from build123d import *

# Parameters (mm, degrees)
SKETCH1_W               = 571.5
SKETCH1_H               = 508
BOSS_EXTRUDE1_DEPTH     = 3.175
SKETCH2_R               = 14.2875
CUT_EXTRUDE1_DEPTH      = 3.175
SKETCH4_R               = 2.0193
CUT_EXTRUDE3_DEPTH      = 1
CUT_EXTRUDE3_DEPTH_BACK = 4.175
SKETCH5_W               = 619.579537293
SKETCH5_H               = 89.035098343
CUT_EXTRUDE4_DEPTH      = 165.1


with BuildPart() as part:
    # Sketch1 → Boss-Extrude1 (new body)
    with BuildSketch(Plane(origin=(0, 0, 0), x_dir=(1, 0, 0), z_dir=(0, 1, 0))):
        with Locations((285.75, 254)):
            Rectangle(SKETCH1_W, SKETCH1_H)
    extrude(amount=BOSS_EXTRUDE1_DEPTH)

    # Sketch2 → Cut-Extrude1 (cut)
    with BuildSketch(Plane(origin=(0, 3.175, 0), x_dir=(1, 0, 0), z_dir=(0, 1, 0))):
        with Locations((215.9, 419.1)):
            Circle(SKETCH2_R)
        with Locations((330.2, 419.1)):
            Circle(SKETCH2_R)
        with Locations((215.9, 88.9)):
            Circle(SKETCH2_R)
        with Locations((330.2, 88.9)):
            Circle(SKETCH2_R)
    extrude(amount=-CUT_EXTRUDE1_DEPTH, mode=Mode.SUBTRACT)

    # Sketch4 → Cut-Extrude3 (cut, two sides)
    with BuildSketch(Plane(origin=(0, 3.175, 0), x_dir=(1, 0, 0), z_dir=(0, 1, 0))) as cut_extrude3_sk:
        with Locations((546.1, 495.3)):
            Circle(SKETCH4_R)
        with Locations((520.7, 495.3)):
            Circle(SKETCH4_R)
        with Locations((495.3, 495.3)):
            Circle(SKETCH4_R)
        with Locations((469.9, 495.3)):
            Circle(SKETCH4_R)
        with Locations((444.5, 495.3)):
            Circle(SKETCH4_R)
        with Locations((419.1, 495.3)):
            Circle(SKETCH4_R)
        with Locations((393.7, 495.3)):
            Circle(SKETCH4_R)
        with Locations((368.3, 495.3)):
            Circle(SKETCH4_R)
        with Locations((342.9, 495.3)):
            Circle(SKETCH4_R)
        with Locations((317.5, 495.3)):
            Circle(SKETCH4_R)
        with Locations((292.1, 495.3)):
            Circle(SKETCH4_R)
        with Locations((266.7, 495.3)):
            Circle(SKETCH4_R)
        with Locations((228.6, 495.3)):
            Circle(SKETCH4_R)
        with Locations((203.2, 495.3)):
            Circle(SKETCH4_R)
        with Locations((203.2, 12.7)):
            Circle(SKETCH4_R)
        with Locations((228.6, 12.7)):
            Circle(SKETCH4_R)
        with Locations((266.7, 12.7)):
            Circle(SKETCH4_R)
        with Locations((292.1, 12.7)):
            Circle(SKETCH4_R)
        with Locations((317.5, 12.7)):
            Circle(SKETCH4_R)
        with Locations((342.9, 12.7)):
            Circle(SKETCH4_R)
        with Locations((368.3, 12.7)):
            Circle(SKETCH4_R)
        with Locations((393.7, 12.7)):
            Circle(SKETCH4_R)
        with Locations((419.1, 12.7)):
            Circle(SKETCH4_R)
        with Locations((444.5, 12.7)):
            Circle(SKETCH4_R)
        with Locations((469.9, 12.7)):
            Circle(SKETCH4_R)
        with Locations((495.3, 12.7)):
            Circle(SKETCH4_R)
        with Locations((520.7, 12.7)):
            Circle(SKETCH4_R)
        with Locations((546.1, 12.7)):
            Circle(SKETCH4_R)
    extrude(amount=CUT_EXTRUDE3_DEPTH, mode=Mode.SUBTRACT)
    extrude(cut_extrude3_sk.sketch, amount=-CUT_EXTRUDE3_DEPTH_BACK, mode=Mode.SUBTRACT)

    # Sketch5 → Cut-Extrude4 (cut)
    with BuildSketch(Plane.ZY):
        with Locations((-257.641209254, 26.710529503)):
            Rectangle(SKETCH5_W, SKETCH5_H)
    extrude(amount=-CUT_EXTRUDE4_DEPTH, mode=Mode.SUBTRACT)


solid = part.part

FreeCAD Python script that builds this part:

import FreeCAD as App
import Part
import Sketcher
Q = App.Units.Quantity


def add_polygon(sketch, points):
    """Adds a closed chain of lines whose ends are joined by coincident constraints."""
    first, n = sketch.GeometryCount, len(points)
    for a, b in zip(points, points[1:] + points[:1]):
        sketch.addGeometry(Part.LineSegment(App.Vector(*a, 0), App.Vector(*b, 0)), False)
    for i in range(n):
        sketch.addConstraint(Sketcher.Constraint("Coincident", first + i, 2, first + (i + 1) % n, 1))

doc = App.newDocument("Part")
params = doc.addObject("Spreadsheet::Sheet", "Params")
for row, (alias, value) in enumerate([
    ("sketch1_height", "20 in"),
    ("sketch1_width", "22.5 in"),
    ("pad1_length", "0.125 in"),
    ("sketch2_diameter", "1.125 in"),
    ("pocket1_length", "0.125 in"),
    ("sketch3_diameter", "0.159 in"),
    ("pocket3_length", "6.5 in"),
], start=1):
    params.set(f"A{row}", alias)
    params.set(f"B{row}", "=" + value)
    params.setAlias(f"B{row}", alias)

body = doc.addObject("PartDesign::Body", "Body")

# Sketch on XZ plane
sketch1 = body.newObject("Sketcher::SketchObject", "Sketch")
sketch1.AttachmentSupport = (doc.getObject("XZ_Plane"), [""])
sketch1.MapMode = "FlatFace"
add_polygon(sketch1, [(0, -508), (0, 0), (572, 0), (572, -508)])  # lines 0-3
sketch1.addConstraint([
    Sketcher.Constraint("Vertical", 0),
    Sketcher.Constraint("Horizontal", 1),
    Sketcher.Constraint("Vertical", 2),
    Sketcher.Constraint("Horizontal", 3),
    Sketcher.Constraint("Coincident", 0, 2, -1, 1),
    Sketcher.Constraint("DistanceY", 0, 1, 0, 2, Q("20 in")),
    Sketcher.Constraint("DistanceX", 1, 1, 1, 2, Q("22.5 in")),
])
sketch1.setExpression("Constraints[9]", "Params.sketch1_height")
sketch1.setExpression("Constraints[10]", "Params.sketch1_width")
pad1 = body.newObject("PartDesign::Pad", "Pad")
pad1.Profile = sketch1
pad1.setExpression("Length", "Params.pad1_length")
pad1.Reversed = True

# Sketch on XZ plane
sketch2 = body.newObject("Sketcher::SketchObject", "Sketch001")
sketch2.AttachmentSupport = (doc.getObject("XZ_Plane"), [""])
sketch2.MapMode = "FlatFace"
sketch2.AttachmentOffset = App.Placement(App.Vector(0, 0, -0.125 * 25.4), App.Rotation())
sketch2.addGeometry([
    Part.Circle(App.Vector(216, -419, 0), App.Vector(0, 0, 1), 14),
    Part.Circle(App.Vector(330, -419, 0), App.Vector(0, 0, 1), 14),
    Part.Circle(App.Vector(216, -89, 0), App.Vector(0, 0, 1), 14),
    Part.Circle(App.Vector(330, -89, 0), App.Vector(0, 0, 1), 14),
], False)
sketch2.addConstraint([
    Sketcher.Constraint("Equal", 0, 1),
    Sketcher.Constraint("Equal", 1, 2),
    Sketcher.Constraint("Equal", 2, 3),
    Sketcher.Constraint("Horizontal", 0, 3, 1, 3),
    Sketcher.Constraint("Horizontal", 2, 3, 3, 3),
    Sketcher.Constraint("Vertical", 0, 3, 2, 3),
    Sketcher.Constraint("Vertical", 1, 3, 3, 3),
    Sketcher.Constraint("Diameter", 0, Q("1.125 in")),
    Sketcher.Constraint("DistanceX", -1, 1, 1, 3, Q("13 in")),
    Sketcher.Constraint("DistanceY", 0, 3, 2, 3, Q("13 in")),
    Sketcher.Constraint("DistanceX", -1, 1, 0, 3, Q("8.5 in")),
    Sketcher.Constraint("DistanceY", 0, 3, -1, 1, Q("16.5 in")),
])
sketch2.setExpression("Constraints[7]", "Params.sketch2_diameter")
pocket1 = body.newObject("PartDesign::Pocket", "Pocket")
pocket1.Profile = sketch2
pocket1.setExpression("Length", "Params.pocket1_length")
pocket1.Reversed = True

# Sketch on XZ plane
sketch3 = body.newObject("Sketcher::SketchObject", "Sketch002")
sketch3.AttachmentSupport = (doc.getObject("XZ_Plane"), [""])
sketch3.MapMode = "FlatFace"
sketch3.AttachmentOffset = App.Placement(App.Vector(0, 0, -0.125 * 25.4), App.Rotation())
sketch3.addGeometry([
    Part.Circle(App.Vector(546.1, -495.3, 0), App.Vector(0, 0, 1), 2),  # 0
    Part.Circle(App.Vector(520.7, -495.3, 0), App.Vector(0, 0, 1), 2),  # 1
    Part.Circle(App.Vector(495.3, -495.3, 0), App.Vector(0, 0, 1), 2),  # 2
    Part.Circle(App.Vector(469.9, -495.3, 0), App.Vector(0, 0, 1), 2),  # 3
    Part.Circle(App.Vector(444.5, -495.3, 0), App.Vector(0, 0, 1), 2),  # 4
    Part.Circle(App.Vector(419.1, -495.3, 0), App.Vector(0, 0, 1), 2),  # 5
    Part.Circle(App.Vector(393.7, -495.3, 0), App.Vector(0, 0, 1), 2),  # 6
    Part.Circle(App.Vector(368.3, -495.3, 0), App.Vector(0, 0, 1), 2),  # 7
    Part.Circle(App.Vector(342.9, -495.3, 0), App.Vector(0, 0, 1), 2),  # 8
    Part.Circle(App.Vector(317.5, -495.3, 0), App.Vector(0, 0, 1), 2),  # 9
    Part.Circle(App.Vector(292.1, -495.3, 0), App.Vector(0, 0, 1), 2),  # 10
    Part.Circle(App.Vector(266.7, -495.3, 0), App.Vector(0, 0, 1), 2),  # 11
    Part.Circle(App.Vector(228.6, -495.3, 0), App.Vector(0, 0, 1), 2),  # 12
    Part.Circle(App.Vector(203.2, -495.3, 0), App.Vector(0, 0, 1), 2),  # 13
    Part.Circle(App.Vector(203.2, -12.7, 0), App.Vector(0, 0, 1), 2),  # 14
    Part.Circle(App.Vector(228.6, -12.7, 0), App.Vector(0, 0, 1), 2),  # 15
    Part.Circle(App.Vector(266.7, -12.7, 0), App.Vector(0, 0, 1), 2),  # 16
    Part.Circle(App.Vector(292.1, -12.7, 0), App.Vector(0, 0, 1), 2),  # 17
    Part.Circle(App.Vector(317.5, -12.7, 0), App.Vector(0, 0, 1), 2),  # 18
    Part.Circle(App.Vector(342.9, -12.7, 0), App.Vector(0, 0, 1), 2),  # 19
    Part.Circle(App.Vector(368.3, -12.7, 0), App.Vector(0, 0, 1), 2),  # 20
    Part.Circle(App.Vector(393.7, -12.7, 0), App.Vector(0, 0, 1), 2),  # 21
    Part.Circle(App.Vector(419.1, -12.7, 0), App.Vector(0, 0, 1), 2),  # 22
    Part.Circle(App.Vector(444.5, -12.7, 0), App.Vector(0, 0, 1), 2),  # 23
    Part.Circle(App.Vector(469.9, -12.7, 0), App.Vector(0, 0, 1), 2),  # 24
    Part.Circle(App.Vector(495.3, -12.7, 0), App.Vector(0, 0, 1), 2),  # 25
    Part.Circle(App.Vector(520.7, -12.7, 0), App.Vector(0, 0, 1), 2),  # 26
    Part.Circle(App.Vector(546.1, -12.7, 0), App.Vector(0, 0, 1), 2),  # 27
], False)
sketch3.addConstraint([
    Sketcher.Constraint("Equal", 0, 1),
    Sketcher.Constraint("Equal", 1, 2),
    Sketcher.Constraint("Equal", 2, 3),
    Sketcher.Constraint("Equal", 3, 4),
    Sketcher.Constraint("Equal", 4, 5),
    Sketcher.Constraint("Equal", 5, 6),
    Sketcher.Constraint("Equal", 6, 7),
    Sketcher.Constraint("Equal", 7, 8),
    Sketcher.Constraint("Equal", 8, 9),
    Sketcher.Constraint("Equal", 9, 10),
    Sketcher.Constraint("Equal", 10, 11),
    Sketcher.Constraint("Equal", 11, 12),
    Sketcher.Constraint("Equal", 12, 13),
    Sketcher.Constraint("Equal", 13, 14),
    Sketcher.Constraint("Equal", 14, 15),
    Sketcher.Constraint("Equal", 15, 16),
    Sketcher.Constraint("Equal", 16, 17),
    Sketcher.Constraint("Equal", 17, 18),
    Sketcher.Constraint("Equal", 18, 19),
    Sketcher.Constraint("Equal", 19, 20),
    Sketcher.Constraint("Equal", 20, 21),
    Sketcher.Constraint("Equal", 21, 22),
    Sketcher.Constraint("Equal", 22, 23),
    Sketcher.Constraint("Equal", 23, 24),
    Sketcher.Constraint("Equal", 24, 25),
    Sketcher.Constraint("Equal", 25, 26),
    Sketcher.Constraint("Equal", 26, 27),
    Sketcher.Constraint("Horizontal", 0, 3, 1, 3),
    Sketcher.Constraint("Horizontal", 1, 3, 2, 3),
    Sketcher.Constraint("Horizontal", 2, 3, 3, 3),
    Sketcher.Constraint("Horizontal", 3, 3, 4, 3),
    Sketcher.Constraint("Horizontal", 4, 3, 5, 3),
    Sketcher.Constraint("Horizontal", 5, 3, 6, 3),
    Sketcher.Constraint("Horizontal", 6, 3, 7, 3),
    Sketcher.Constraint("Horizontal", 7, 3, 8, 3),
    Sketcher.Constraint("Horizontal", 8, 3, 9, 3),
    Sketcher.Constraint("Horizontal", 9, 3, 10, 3),
    Sketcher.Constraint("Horizontal", 10, 3, 11, 3),
    Sketcher.Constraint("Horizontal", 11, 3, 12, 3),
    Sketcher.Constraint("Horizontal", 12, 3, 13, 3),
    Sketcher.Constraint("Horizontal", 14, 3, 15, 3),
    Sketcher.Constraint("Horizontal", 15, 3, 16, 3),
    Sketcher.Constraint("Horizontal", 16, 3, 17, 3),
    Sketcher.Constraint("Horizontal", 17, 3, 18, 3),
    Sketcher.Constraint("Horizontal", 18, 3, 19, 3),
    Sketcher.Constraint("Horizontal", 19, 3, 20, 3),
    Sketcher.Constraint("Horizontal", 20, 3, 21, 3),
    Sketcher.Constraint("Horizontal", 21, 3, 22, 3),
    Sketcher.Constraint("Horizontal", 22, 3, 23, 3),
    Sketcher.Constraint("Horizontal", 23, 3, 24, 3),
    Sketcher.Constraint("Horizontal", 24, 3, 25, 3),
    Sketcher.Constraint("Horizontal", 25, 3, 26, 3),
    Sketcher.Constraint("Horizontal", 26, 3, 27, 3),
    Sketcher.Constraint("Vertical", 13, 3, 14, 3),
    Sketcher.Constraint("Vertical", 12, 3, 15, 3),
    Sketcher.Constraint("Vertical", 11, 3, 16, 3),
    Sketcher.Constraint("Vertical", 10, 3, 17, 3),
    Sketcher.Constraint("Vertical", 9, 3, 18, 3),
    Sketcher.Constraint("Vertical", 8, 3, 19, 3),
    Sketcher.Constraint("Vertical", 7, 3, 20, 3),
    Sketcher.Constraint("Vertical", 6, 3, 21, 3),
    Sketcher.Constraint("Vertical", 5, 3, 22, 3),
    Sketcher.Constraint("Vertical", 4, 3, 23, 3),
    Sketcher.Constraint("Vertical", 3, 3, 24, 3),
    Sketcher.Constraint("Vertical", 2, 3, 25, 3),
    Sketcher.Constraint("Vertical", 1, 3, 26, 3),
    Sketcher.Constraint("Vertical", 0, 3, 27, 3),
    Sketcher.Constraint("Diameter", 0, Q("0.159 in")),
    Sketcher.Constraint("DistanceX", -1, 1, 12, 3, Q("9 in")),
    Sketcher.Constraint("DistanceX", -1, 1, 13, 3, Q("8 in")),
    Sketcher.Constraint("DistanceX", 1, 3, 0, 3, Q("1 in")),
    Sketcher.Constraint("DistanceX", 2, 3, 1, 3, Q("1 in")),
    Sketcher.Constraint("DistanceX", 3, 3, 2, 3, Q("1 in")),
    Sketcher.Constraint("DistanceX", 4, 3, 3, 3, Q("1 in")),
    Sketcher.Constraint("DistanceX", 5, 3, 4, 3, Q("1 in")),
    Sketcher.Constraint("DistanceX", 6, 3, 5, 3, Q("1 in")),
    Sketcher.Constraint("DistanceX", 7, 3, 6, 3, Q("1 in")),
    Sketcher.Constraint("DistanceX", 8, 3, 7, 3, Q("1 in")),
    Sketcher.Constraint("DistanceX", 9, 3, 8, 3, Q("1 in")),
    Sketcher.Constraint("DistanceX", 10, 3, 9, 3, Q("1 in")),
    Sketcher.Constraint("DistanceX", 11, 3, 10, 3, Q("1 in")),
    Sketcher.Constraint("DistanceY", 13, 3, 14, 3, Q("19 in")),
    Sketcher.Constraint("DistanceX", -1, 1, 0, 3, Q("21.5 in")),
    Sketcher.Constraint("DistanceY", 0, 3, -1, 1, Q("19.5 in")),
])
sketch3.setExpression("Constraints[67]", "Params.sketch3_diameter")
pocket2 = body.newObject("PartDesign::Pocket", "Pocket001")
pocket2.Profile = sketch3
pocket2.Type = "ThroughAll"
pocket2.Midplane = True

# Sketch on YZ plane
sketch4 = body.newObject("Sketcher::SketchObject", "Sketch003")
sketch4.AttachmentSupport = (doc.getObject("YZ_Plane"), [""])
sketch4.MapMode = "FlatFace"
add_polygon(sketch4, [(71, -567), (-18, -567), (-18, 52), (71, 52)])  # lines 0-3
sketch4.addConstraint([
    Sketcher.Constraint("Horizontal", 0),
    Sketcher.Constraint("Vertical", 1),
    Sketcher.Constraint("Horizontal", 2),
    Sketcher.Constraint("Vertical", 3),
    Sketcher.Constraint("DistanceX", 0, 2, 0, 1, 89.035098),
    Sketcher.Constraint("DistanceY", 1, 1, 1, 2, 619.579537),
    Sketcher.Constraint("DistanceX", 0, 2, -1, 1, 17.80702),
    Sketcher.Constraint("DistanceY", -1, 1, 1, 2, 52.148559),
])
pocket3 = body.newObject("PartDesign::Pocket", "Pocket002")
pocket3.Profile = sketch4
pocket3.setExpression("Length", "Params.pocket3_length")
pocket3.Reversed = True

doc.recompute()
